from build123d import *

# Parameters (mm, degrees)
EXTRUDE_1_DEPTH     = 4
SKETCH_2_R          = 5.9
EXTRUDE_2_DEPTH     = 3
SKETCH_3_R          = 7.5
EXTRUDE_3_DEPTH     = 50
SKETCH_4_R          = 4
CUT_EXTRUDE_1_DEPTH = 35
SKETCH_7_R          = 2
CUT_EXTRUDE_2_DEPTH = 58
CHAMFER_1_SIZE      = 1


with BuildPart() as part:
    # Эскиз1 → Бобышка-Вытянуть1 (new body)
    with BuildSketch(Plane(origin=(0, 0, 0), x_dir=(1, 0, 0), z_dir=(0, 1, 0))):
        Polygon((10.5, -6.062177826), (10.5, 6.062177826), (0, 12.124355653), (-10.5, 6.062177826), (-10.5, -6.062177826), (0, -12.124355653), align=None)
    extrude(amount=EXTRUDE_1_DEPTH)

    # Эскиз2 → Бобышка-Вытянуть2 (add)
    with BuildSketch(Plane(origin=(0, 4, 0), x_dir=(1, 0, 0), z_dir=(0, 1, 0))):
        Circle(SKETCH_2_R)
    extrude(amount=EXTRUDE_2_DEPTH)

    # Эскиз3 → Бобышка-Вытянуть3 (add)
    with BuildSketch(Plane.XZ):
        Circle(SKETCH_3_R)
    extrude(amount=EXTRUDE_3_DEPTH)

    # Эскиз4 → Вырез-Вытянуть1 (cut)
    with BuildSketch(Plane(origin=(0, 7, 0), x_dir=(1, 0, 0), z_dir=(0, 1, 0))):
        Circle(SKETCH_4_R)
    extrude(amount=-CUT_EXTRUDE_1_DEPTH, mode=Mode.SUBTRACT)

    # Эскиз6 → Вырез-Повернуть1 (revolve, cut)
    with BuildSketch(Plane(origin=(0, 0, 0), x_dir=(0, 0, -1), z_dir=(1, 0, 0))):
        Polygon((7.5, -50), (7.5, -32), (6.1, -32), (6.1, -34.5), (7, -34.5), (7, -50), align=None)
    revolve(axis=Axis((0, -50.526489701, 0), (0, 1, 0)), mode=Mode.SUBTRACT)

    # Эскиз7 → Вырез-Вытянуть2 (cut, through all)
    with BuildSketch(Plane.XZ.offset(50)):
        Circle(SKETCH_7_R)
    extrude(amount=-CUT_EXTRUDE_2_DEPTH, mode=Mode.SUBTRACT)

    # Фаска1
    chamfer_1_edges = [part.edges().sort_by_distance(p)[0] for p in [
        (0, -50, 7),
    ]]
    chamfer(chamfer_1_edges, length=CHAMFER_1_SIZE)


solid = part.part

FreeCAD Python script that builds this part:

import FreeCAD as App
import Part
import Sketcher
Q = App.Units.Quantity


def edges_at(feature, points):
    """Names of the edges that pass closest to the given points."""
    edges = feature.Shape.Edges
    near = lambda p: min(range(len(edges)), key=lambda i: edges[i].distToShape(Part.Vertex(*p))[0])
    return sorted({f"Edge{near(p) + 1}" for p in points})

doc = App.newDocument("Part")
body = doc.addObject("PartDesign::Body", "Body")

sketch1 = body.newObject("Sketcher::SketchObject", "Sketch")
sketch1.AttachmentSupport = (doc.getObject("XZ_Plane"), [""])
sketch1.MapMode = "FlatFace"
sketch1.addGeometry([
    Part.LineSegment(App.Vector(10, 6, 0), App.Vector(10, -6, 0)),
    Part.LineSegment(App.Vector(10, -6, 0), App.Vector(0, -12, 0)),
    Part.LineSegment(App.Vector(0, -12, 0), App.Vector(-10, -6, 0)),
    Part.LineSegment(App.Vector(-10, -6, 0), App.Vector(-10, 6, 0)),
    Part.LineSegment(App.Vector(-10, 6, 0), App.Vector(0, 12, 0)),
    Part.LineSegment(App.Vector(0, 12, 0), App.Vector(10, 6, 0)),
], False)
sketch1.addConstraint([
    Sketcher.Constraint("Coincident", 0, 2, 1, 1),
    Sketcher.Constraint("Coincident", 1, 2, 2, 1),
    Sketcher.Constraint("Coincident", 2, 2, 3, 1),
    Sketcher.Constraint("Coincident", 3, 2, 4, 1),
    Sketcher.Constraint("Coincident", 4, 2, 5, 1),
    Sketcher.Constraint("Coincident", 5, 2, 0, 1),
    Sketcher.Constraint("Vertical", 0),
    Sketcher.Constraint("Vertical", 3),
    Sketcher.Constraint("Symmetric", 0, 2, 3, 2, -1, 1),
    Sketcher.Constraint("Symmetric", 1, 2, 4, 2, -1, 1),
    Sketcher.Constraint("PointOnObject", 1, 2, -2),
    Sketcher.Constraint("Parallel", 2, 5),
    Sketcher.Constraint("Horizontal", 0, 2, 2, 2),
    Sketcher.Constraint("Angle", 1, Q("-150 deg")),
    Sketcher.Constraint("DistanceX", 2, 2, 0, 2, Q("21 mm")),
    Sketcher.Constraint("DistanceY", 0, 2, 0, 1, Q("12.124356 mm")),
])
pad1 = body.newObject("PartDesign::Pad", "Pad")
pad1.Profile = sketch1
pad1.Length = 4
pad1.Reversed = True

sketch2 = body.newObject("Sketcher::SketchObject", "Sketch001")
sketch2.AttachmentSupport = (doc.getObject("XZ_Plane"), [""])
sketch2.MapMode = "FlatFace"
sketch2.AttachmentOffset = App.Placement(App.Vector(0, 0, -4), App.Rotation())
sketch2.addGeometry(Part.Circle(App.Vector(0, 0, 0), App.Vector(0, 0, 1), 6), False)
sketch2.addConstraint([
    Sketcher.Constraint("Coincident", 0, 3, -1, 1),
    Sketcher.Constraint("Diameter", 0, Q("11.8 mm")),
])
pad2 = body.newObject("PartDesign::Pad", "Pad001")
pad2.Profile = sketch2
pad2.Length = 3
pad2.Reversed = True

sketch3 = body.newObject("Sketcher::SketchObject", "Sketch002")
sketch3.AttachmentSupport = (doc.getObject("XZ_Plane"), [""])
sketch3.MapMode = "FlatFace"
sketch3.addGeometry(Part.Circle(App.Vector(0, 0, 0), App.Vector(0, 0, 1), 8), False)
sketch3.addConstraint([
    Sketcher.Constraint("Coincident", 0, 3, -1, 1),
    Sketcher.Constraint("Diameter", 0, Q("15 mm")),
])
pad3 = body.newObject("PartDesign::Pad", "Pad002")
pad3.Profile = sketch3
pad3.Length = 50

sketch4 = body.newObject("Sketcher::SketchObject", "Sketch003")
sketch4.AttachmentSupport = (doc.getObject("XZ_Plane"), [""])
sketch4.MapMode = "FlatFace"
sketch4.AttachmentOffset = App.Placement(App.Vector(0, 0, -7), App.Rotation())
sketch4.addGeometry(Part.Circle(App.Vector(0, 0, 0), App.Vector(0, 0, 1), 4), False)
sketch4.addConstraint([
    Sketcher.Constraint("Coincident", 0, 3, -1, 1),
    Sketcher.Constraint("Diameter", 0, Q("8 mm")),
])
pocket1 = body.newObject("PartDesign::Pocket", "Pocket")
pocket1.Profile = sketch4
pocket1.Length = 35
pocket1.Reversed = True

sketch5 = body.newObject("Sketcher::SketchObject", "Sketch004")
sketch5.AttachmentSupport = (doc.getObject("YZ_Plane"), [""])
sketch5.MapMode = "FlatFace"
sketch5.addGeometry([
    Part.LineSegment(App.Vector(-50, -7.5, 0), App.Vector(-32, -7.5, 0)),
    Part.LineSegment(App.Vector(-32, -7.5, 0), App.Vector(-32, -6.1, 0)),
    Part.LineSegment(App.Vector(-32, -6.1, 0), App.Vector(-34.5, -6.1, 0)),
    Part.LineSegment(App.Vector(-34.5, -6.1, 0), App.Vector(-34.5, -7, 0)),
    Part.LineSegment(App.Vector(-34.5, -7, 0), App.Vector(-50, -7, 0)),
    Part.LineSegment(App.Vector(-50, -7, 0), App.Vector(-50, -7.5, 0)),
], False)
sketch5.addConstraint([
    Sketcher.Constraint("Coincident", 0, 2, 1, 1),
    Sketcher.Constraint("Coincident", 1, 2, 2, 1),
    Sketcher.Constraint("Coincident", 2, 2, 3, 1),
    Sketcher.Constraint("Coincident", 3, 2, 4, 1),
    Sketcher.Constraint("Coincident", 4, 2, 5, 1),
    Sketcher.Constraint("Coincident", 5, 2, 0, 1),
    Sketcher.Constraint("Horizontal", 0),
    Sketcher.Constraint("Vertical", 1),
    Sketcher.Constraint("Horizontal", 2),
    Sketcher.Constraint("Vertical", 3),
    Sketcher.Constraint("Horizontal", 4),
    Sketcher.Constraint("Vertical", 5),
    Sketcher.Constraint("DistanceX", 0, 1, 0, 2, Q("18 mm")),
    Sketcher.Constraint("DistanceX", 2, 2, 2, 1, Q("2.5 mm")),
    Sketcher.Constraint("DistanceY", 1, 1, 1, 2, Q("1.4 mm")),
    Sketcher.Constraint("DistanceY", 3, 2, 3, 1, Q("0.9 mm")),
    Sketcher.Constraint("DistanceX", 0, 2, -1, 1, Q("32 mm")),
    Sketcher.Constraint("DistanceY", 3, 2, -1, 1, Q("7 mm")),
])
groove = body.newObject("PartDesign::Groove", "Groove")
groove.Profile = sketch5
groove.ReferenceAxis = (sketch5, ["H_Axis"])
groove.Angle = 360

sketch6 = body.newObject("Sketcher::SketchObject", "Sketch005")
sketch6.AttachmentSupport = (doc.getObject("XZ_Plane"), [""])
sketch6.MapMode = "FlatFace"
sketch6.AttachmentOffset = App.Placement(App.Vector(0, 0, 50), App.Rotation())
sketch6.addGeometry(Part.Circle(App.Vector(0, 0, 0), App.Vector(0, 0, 1), 2), False)
sketch6.addConstraint([
    Sketcher.Constraint("Coincident", 0, 3, -1, 1),
    Sketcher.Constraint("Diameter", 0, Q("4 mm")),
])
pocket2 = body.newObject("PartDesign::Pocket", "Pocket001")
pocket2.Profile = sketch6
pocket2.Type = "ThroughAll"
doc.recompute()

chamfer = body.newObject("PartDesign::Chamfer", "Chamfer")
chamfer.Base = (pocket2, edges_at(pocket2, [(0, -50, 7)]))
chamfer.Size = 1

doc.recompute()
